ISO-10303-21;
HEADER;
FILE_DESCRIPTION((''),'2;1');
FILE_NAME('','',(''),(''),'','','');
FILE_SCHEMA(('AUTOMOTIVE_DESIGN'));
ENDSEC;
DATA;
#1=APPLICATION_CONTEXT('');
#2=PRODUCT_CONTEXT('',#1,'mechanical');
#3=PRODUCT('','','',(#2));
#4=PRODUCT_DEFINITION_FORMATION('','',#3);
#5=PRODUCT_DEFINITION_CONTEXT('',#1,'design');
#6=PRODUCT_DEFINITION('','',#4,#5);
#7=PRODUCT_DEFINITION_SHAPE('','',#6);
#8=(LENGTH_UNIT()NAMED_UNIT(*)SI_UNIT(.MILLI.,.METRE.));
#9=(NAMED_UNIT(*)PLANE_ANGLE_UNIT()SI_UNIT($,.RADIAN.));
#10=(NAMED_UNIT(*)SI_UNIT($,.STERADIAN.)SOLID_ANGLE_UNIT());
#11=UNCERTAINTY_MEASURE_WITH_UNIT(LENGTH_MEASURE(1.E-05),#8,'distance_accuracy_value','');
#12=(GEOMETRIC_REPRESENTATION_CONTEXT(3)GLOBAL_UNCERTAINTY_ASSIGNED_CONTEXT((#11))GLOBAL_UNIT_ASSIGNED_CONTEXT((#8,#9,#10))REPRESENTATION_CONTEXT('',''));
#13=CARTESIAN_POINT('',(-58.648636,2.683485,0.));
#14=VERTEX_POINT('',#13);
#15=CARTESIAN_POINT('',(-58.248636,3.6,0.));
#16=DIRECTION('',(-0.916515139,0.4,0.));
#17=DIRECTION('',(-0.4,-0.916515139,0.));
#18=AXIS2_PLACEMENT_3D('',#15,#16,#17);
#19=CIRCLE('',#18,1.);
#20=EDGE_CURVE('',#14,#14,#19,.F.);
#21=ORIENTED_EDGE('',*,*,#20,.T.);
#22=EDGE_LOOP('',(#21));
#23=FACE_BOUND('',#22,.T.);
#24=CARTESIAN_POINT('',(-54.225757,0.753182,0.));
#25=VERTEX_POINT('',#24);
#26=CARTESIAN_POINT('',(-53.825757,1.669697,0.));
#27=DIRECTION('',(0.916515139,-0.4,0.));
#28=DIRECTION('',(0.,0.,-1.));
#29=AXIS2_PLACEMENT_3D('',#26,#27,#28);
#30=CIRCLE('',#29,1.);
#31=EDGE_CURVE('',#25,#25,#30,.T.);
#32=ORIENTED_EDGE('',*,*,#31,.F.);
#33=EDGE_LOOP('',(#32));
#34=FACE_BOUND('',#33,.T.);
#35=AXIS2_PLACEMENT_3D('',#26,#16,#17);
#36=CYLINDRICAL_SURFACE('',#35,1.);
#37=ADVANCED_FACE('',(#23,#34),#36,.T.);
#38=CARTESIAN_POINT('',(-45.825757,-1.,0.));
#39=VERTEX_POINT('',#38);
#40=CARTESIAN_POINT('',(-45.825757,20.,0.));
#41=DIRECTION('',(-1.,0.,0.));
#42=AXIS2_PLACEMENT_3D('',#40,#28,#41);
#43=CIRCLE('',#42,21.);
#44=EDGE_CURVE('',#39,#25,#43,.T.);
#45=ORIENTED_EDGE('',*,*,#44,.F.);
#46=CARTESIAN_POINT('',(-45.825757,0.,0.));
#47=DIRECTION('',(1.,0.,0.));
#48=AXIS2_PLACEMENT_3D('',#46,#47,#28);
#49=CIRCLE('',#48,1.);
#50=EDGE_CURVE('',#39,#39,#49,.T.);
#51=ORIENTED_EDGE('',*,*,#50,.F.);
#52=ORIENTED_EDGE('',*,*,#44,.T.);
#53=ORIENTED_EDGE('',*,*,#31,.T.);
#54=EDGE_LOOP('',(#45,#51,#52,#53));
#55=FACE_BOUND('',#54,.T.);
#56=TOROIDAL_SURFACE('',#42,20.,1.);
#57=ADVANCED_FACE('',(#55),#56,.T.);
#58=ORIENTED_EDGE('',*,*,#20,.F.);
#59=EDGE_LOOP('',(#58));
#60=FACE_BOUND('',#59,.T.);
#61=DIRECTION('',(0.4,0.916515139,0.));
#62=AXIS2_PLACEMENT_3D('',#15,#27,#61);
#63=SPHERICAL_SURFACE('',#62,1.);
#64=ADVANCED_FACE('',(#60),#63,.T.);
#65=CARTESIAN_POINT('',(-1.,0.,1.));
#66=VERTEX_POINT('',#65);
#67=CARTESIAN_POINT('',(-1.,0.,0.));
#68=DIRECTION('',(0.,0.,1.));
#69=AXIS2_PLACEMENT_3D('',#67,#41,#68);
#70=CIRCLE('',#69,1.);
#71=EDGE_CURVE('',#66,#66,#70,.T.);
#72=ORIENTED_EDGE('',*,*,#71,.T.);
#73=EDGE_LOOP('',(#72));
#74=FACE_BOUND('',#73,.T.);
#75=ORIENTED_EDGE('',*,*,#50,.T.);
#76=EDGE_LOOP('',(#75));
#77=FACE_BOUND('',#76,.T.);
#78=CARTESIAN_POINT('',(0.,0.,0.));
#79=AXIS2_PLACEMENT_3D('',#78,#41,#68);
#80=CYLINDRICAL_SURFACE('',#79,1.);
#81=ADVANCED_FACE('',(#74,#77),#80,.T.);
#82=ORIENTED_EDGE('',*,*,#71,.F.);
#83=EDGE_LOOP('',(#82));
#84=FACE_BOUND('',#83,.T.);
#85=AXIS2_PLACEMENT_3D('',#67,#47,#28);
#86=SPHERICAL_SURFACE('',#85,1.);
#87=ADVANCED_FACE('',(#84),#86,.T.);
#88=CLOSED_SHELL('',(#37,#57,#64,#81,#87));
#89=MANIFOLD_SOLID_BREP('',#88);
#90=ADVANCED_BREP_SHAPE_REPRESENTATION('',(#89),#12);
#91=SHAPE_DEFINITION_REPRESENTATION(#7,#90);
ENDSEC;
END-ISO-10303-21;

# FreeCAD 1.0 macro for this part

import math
import FreeCAD as App
import Part
import Sketcher
from FreeCAD import Vector


def edges_at(feature, points):
    """Names of the edges that pass closest to the given points."""
    edges = feature.Shape.Edges
    near = lambda p: min(range(len(edges)), key=lambda i: edges[i].distToShape(Part.Vertex(*p))[0])
    return sorted({f"Edge{near(p) + 1}" for p in points})

doc = App.newDocument("Part")
body = doc.addObject("PartDesign::Body", "Body")

# Sketch on YZ plane
sketch1 = body.newObject("Sketcher::SketchObject", "Sketch")
sketch1.AttachmentSupport = (doc.getObject("YZ_Plane"), [""])
sketch1.MapMode = "FlatFace"
sketch1.addGeometry(Part.Circle(Vector(0, 0, 0), Vector(0, 0, 1), 1), False)
sketch1.addConstraint(Sketcher.Constraint("Coincident", 0, 3, -1, 1))
sketch1.addConstraint(Sketcher.Constraint("Diameter", 0, 2.0))

# Sketch on XY plane
sketch2 = body.newObject("Sketcher::SketchObject", "Sketch001")
sketch2.AttachmentSupport = (doc.getObject("XY_Plane"), [""])
sketch2.MapMode = "FlatFace"
sketch2.addGeometry(Part.LineSegment(Vector(0, 0, 0), Vector(-46, 0, 0)), False)
sketch2.addGeometry(Part.ArcOfCircle(Part.Circle(Vector(-46, 20, 0), Vector(0, 0, 1), 20), math.radians(-114), math.radians(-90)), False)
sketch2.addGeometry(Part.LineSegment(Vector(-54, 2, 0), Vector(-59, 4, 0)), False)
sketch2.addConstraint(Sketcher.Constraint("Tangent", 0, 2, 1, 2))
sketch2.addConstraint(Sketcher.Constraint("Tangent", 1, 1, 2, 1))
sketch2.addConstraint(Sketcher.Constraint("Horizontal", 0))
sketch2.addConstraint(Sketcher.Constraint("Coincident", 0, 1, -1, 1))
sketch2.addConstraint(Sketcher.Constraint("Radius", 1, 20.0))
sketch2.addConstraint(Sketcher.Constraint("DistanceY", -1, 1, 2, 2, 4.0))
sketch2.addConstraint(Sketcher.Constraint("DistanceX", 1, 1, 0, 2, 8.0))
sketch2.addConstraint(Sketcher.Constraint("DistanceX", 0, 2, 0, 1, 45.825757))
doc.recompute()

additivepipe = body.newObject("PartDesign::AdditivePipe", "AdditivePipe")
additivepipe.Profile = sketch1
additivepipe.Spine = (sketch2, ["Edge1", "Edge2", "Edge3"])
doc.recompute()

fillet = body.newObject("PartDesign::Fillet", "Fillet")
fillet.Base = (additivepipe, edges_at(additivepipe, [(-59.165, 4, 1), (0, 0, 1)]))
fillet.Radius = 1

doc.recompute()
